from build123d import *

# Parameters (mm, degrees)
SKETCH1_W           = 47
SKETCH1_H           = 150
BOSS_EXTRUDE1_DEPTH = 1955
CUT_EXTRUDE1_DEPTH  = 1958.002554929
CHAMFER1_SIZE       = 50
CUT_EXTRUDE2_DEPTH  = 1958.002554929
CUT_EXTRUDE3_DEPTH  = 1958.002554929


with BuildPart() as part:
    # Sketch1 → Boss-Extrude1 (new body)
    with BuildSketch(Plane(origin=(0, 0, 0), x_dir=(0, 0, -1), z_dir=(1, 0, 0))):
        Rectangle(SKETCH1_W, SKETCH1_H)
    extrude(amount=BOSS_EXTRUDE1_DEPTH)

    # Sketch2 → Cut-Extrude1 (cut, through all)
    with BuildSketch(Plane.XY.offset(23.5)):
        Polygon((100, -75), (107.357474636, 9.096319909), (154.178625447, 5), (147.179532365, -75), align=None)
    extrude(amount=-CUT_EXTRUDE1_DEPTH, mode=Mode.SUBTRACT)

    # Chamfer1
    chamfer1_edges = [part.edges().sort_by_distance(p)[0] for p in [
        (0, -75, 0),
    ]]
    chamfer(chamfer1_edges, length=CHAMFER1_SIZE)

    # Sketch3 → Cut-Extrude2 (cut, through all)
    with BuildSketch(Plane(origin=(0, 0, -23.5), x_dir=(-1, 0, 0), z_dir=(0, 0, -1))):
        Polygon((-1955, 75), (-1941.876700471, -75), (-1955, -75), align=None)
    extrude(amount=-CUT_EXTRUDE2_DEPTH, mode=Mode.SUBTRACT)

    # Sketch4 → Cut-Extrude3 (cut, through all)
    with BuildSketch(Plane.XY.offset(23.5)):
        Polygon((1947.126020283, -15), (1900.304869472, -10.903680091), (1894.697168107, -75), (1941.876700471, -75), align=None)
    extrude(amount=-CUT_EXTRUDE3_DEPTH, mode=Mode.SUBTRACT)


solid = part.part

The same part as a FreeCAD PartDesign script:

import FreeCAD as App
import Part
import Sketcher
from FreeCAD import Vector
Q = App.Units.Quantity


def edges_at(feature, points):
    """Names of the edges that pass closest to the given points."""
    edges = feature.Shape.Edges
    near = lambda p: min(range(len(edges)), key=lambda i: edges[i].distToShape(Part.Vertex(*p))[0])
    return sorted({f"Edge{near(p) + 1}" for p in points})

doc = App.newDocument("Part")
body = doc.addObject("PartDesign::Body", "Body")

# Sketch on YZ plane
sketch1 = body.newObject("Sketcher::SketchObject", "Sketch")
sketch1.AttachmentSupport = (doc.getObject("YZ_Plane"), [""])
sketch1.MapMode = "FlatFace"
sketch1.addGeometry([
    Part.LineSegment(Vector(75, 24, 0), Vector(-75, 24, 0)),
    Part.LineSegment(Vector(-75, 24, 0), Vector(-75, -24, 0)),
    Part.LineSegment(Vector(-75, -24, 0), Vector(75, -24, 0)),
    Part.LineSegment(Vector(75, -24, 0), Vector(75, 24, 0)),
], False)
sketch1.addConstraint([
    Sketcher.Constraint("Coincident", 0, 2, 1, 1),
    Sketcher.Constraint("Coincident", 1, 2, 2, 1),
    Sketcher.Constraint("Coincident", 2, 2, 3, 1),
    Sketcher.Constraint("Coincident", 3, 2, 0, 1),
    Sketcher.Constraint("Horizontal", 0),
    Sketcher.Constraint("Vertical", 1),
    Sketcher.Constraint("Horizontal", 2),
    Sketcher.Constraint("Vertical", 3),
    Sketcher.Constraint("Symmetric", 0, 2, 2, 2, -1, 1),
    Sketcher.Constraint("DistanceX", 0, 2, 0, 1, Q("150 mm")),
    Sketcher.Constraint("DistanceY", 1, 2, 1, 1, Q("47 mm")),
])
pad1 = body.newObject("PartDesign::Pad", "Pad")
pad1.Profile = sketch1
pad1.Length = 1955

# Sketch on XY plane
sketch2 = body.newObject("Sketcher::SketchObject", "Sketch001")
sketch2.AttachmentSupport = (doc.getObject("XY_Plane"), [""])
sketch2.MapMode = "FlatFace"
sketch2.AttachmentOffset = App.Placement(Vector(0, 0, 23.5), App.Rotation())
sketch2.addGeometry([
    Part.LineSegment(Vector(107, 9, 0), Vector(100, -75, 0)),
    Part.LineSegment(Vector(100, -75, 0), Vector(147, -75, 0)),
    Part.LineSegment(Vector(147, -75, 0), Vector(154, 5, 0)),
    Part.LineSegment(Vector(154, 5, 0), Vector(107, 9, 0)),
], False)
sketch2.addConstraint([
    Sketcher.Constraint("Coincident", 0, 2, 1, 1),
    Sketcher.Constraint("Coincident", 1, 2, 2, 1),
    Sketcher.Constraint("Coincident", 2, 2, 3, 1),
    Sketcher.Constraint("Coincident", 3, 2, 0, 1),
    Sketcher.Constraint("Horizontal", 1),
    Sketcher.Constraint("Parallel", 0, 2),
    Sketcher.Constraint("Perpendicular", 2, 3),
    Sketcher.Constraint("Angle", 0, Q("-95 deg")),
    Sketcher.Constraint("Distance", 3, Q("47 mm")),
    Sketcher.Constraint("DistanceX", -1, 1, 0, 2, Q("100 mm")),
    Sketcher.Constraint("DistanceY", 0, 2, -1, 1, Q("75 mm")),
    Sketcher.Constraint("DistanceY", -1, 1, 2, 2, Q("5 mm")),
])
pocket1 = body.newObject("PartDesign::Pocket", "Pocket")
pocket1.Profile = sketch2
pocket1.Type = "ThroughAll"
doc.recompute()

chamfer = body.newObject("PartDesign::Chamfer", "Chamfer")
chamfer.Base = (pocket1, edges_at(pocket1, [(0, -75, 0)]))
chamfer.Size = 50

# Sketch on XY plane
sketch3 = body.newObject("Sketcher::SketchObject", "Sketch002")
sketch3.AttachmentSupport = (doc.getObject("XY_Plane"), [""])
sketch3.MapMode = "FlatFace"
sketch3.AttachmentOffset = App.Placement(Vector(0, 0, -23.5), App.Rotation())
sketch3.addGeometry([
    Part.LineSegment(Vector(1942, -75, 0), Vector(1955, 75, 0)),
    Part.LineSegment(Vector(1955, 75, 0), Vector(1955, -75, 0)),
    Part.LineSegment(Vector(1955, -75, 0), Vector(1942, -75, 0)),
], False)
sketch3.addConstraint([
    Sketcher.Constraint("Coincident", 0, 2, 1, 1),
    Sketcher.Constraint("Coincident", 1, 2, 2, 1),
    Sketcher.Constraint("Coincident", 2, 2, 0, 1),
    Sketcher.Constraint("Vertical", 1),
    Sketcher.Constraint("Horizontal", 2),
    Sketcher.Constraint("DistanceY", 1, 2, 1, 1, Q("150 mm")),
    Sketcher.Constraint("Angle", 0, Q("85 deg")),
    Sketcher.Constraint("DistanceX", -1, 1, 0, 2, Q("1955 mm")),
    Sketcher.Constraint("DistanceY", -1, 1, 0, 2, Q("75 mm")),
])
pocket2 = body.newObject("PartDesign::Pocket", "Pocket001")
pocket2.Profile = sketch3
pocket2.Type = "ThroughAll"
pocket2.Reversed = True

# Sketch on XY plane
sketch4 = body.newObject("Sketcher::SketchObject", "Sketch003")
sketch4.AttachmentSupport = (doc.getObject("XY_Plane"), [""])
sketch4.MapMode = "FlatFace"
sketch4.AttachmentOffset = App.Placement(Vector(0, 0, 23.5), App.Rotation())
sketch4.addGeometry([
    Part.LineSegment(Vector(1947, -15, 0), Vector(1900, -11, 0)),
    Part.LineSegment(Vector(1900, -11, 0), Vector(1895, -75, 0)),
    Part.LineSegment(Vector(1895, -75, 0), Vector(1942, -75, 0)),
    Part.LineSegment(Vector(1942, -75, 0), Vector(1947, -15, 0)),
], False)
sketch4.addConstraint([
    Sketcher.Constraint("Coincident", 0, 2, 1, 1),
    Sketcher.Constraint("Coincident", 1, 2, 2, 1),
    Sketcher.Constraint("Coincident", 2, 2, 3, 1),
    Sketcher.Constraint("Coincident", 3, 2, 0, 1),
    Sketcher.Constraint("Horizontal", 2),
    Sketcher.Constraint("Perpendicular", 0, 1),
    Sketcher.Constraint("Parallel", 1, 3),
    Sketcher.Constraint("Angle", 0, Q("175 deg")),
    Sketcher.Constraint("Distance", 0, Q("47 mm")),
    Sketcher.Constraint("DistanceY", 1, 2, -1, 1, Q("75 mm")),
    Sketcher.Constraint("DistanceY", 3, 2, -1, 1, Q("15 mm")),
    Sketcher.Constraint("DistanceX", -1, 1, 2, 2, Q("1941.8767 mm")),
])
pocket3 = body.newObject("PartDesign::Pocket", "Pocket002")
pocket3.Profile = sketch4
pocket3.Type = "ThroughAll"

doc.recompute()
